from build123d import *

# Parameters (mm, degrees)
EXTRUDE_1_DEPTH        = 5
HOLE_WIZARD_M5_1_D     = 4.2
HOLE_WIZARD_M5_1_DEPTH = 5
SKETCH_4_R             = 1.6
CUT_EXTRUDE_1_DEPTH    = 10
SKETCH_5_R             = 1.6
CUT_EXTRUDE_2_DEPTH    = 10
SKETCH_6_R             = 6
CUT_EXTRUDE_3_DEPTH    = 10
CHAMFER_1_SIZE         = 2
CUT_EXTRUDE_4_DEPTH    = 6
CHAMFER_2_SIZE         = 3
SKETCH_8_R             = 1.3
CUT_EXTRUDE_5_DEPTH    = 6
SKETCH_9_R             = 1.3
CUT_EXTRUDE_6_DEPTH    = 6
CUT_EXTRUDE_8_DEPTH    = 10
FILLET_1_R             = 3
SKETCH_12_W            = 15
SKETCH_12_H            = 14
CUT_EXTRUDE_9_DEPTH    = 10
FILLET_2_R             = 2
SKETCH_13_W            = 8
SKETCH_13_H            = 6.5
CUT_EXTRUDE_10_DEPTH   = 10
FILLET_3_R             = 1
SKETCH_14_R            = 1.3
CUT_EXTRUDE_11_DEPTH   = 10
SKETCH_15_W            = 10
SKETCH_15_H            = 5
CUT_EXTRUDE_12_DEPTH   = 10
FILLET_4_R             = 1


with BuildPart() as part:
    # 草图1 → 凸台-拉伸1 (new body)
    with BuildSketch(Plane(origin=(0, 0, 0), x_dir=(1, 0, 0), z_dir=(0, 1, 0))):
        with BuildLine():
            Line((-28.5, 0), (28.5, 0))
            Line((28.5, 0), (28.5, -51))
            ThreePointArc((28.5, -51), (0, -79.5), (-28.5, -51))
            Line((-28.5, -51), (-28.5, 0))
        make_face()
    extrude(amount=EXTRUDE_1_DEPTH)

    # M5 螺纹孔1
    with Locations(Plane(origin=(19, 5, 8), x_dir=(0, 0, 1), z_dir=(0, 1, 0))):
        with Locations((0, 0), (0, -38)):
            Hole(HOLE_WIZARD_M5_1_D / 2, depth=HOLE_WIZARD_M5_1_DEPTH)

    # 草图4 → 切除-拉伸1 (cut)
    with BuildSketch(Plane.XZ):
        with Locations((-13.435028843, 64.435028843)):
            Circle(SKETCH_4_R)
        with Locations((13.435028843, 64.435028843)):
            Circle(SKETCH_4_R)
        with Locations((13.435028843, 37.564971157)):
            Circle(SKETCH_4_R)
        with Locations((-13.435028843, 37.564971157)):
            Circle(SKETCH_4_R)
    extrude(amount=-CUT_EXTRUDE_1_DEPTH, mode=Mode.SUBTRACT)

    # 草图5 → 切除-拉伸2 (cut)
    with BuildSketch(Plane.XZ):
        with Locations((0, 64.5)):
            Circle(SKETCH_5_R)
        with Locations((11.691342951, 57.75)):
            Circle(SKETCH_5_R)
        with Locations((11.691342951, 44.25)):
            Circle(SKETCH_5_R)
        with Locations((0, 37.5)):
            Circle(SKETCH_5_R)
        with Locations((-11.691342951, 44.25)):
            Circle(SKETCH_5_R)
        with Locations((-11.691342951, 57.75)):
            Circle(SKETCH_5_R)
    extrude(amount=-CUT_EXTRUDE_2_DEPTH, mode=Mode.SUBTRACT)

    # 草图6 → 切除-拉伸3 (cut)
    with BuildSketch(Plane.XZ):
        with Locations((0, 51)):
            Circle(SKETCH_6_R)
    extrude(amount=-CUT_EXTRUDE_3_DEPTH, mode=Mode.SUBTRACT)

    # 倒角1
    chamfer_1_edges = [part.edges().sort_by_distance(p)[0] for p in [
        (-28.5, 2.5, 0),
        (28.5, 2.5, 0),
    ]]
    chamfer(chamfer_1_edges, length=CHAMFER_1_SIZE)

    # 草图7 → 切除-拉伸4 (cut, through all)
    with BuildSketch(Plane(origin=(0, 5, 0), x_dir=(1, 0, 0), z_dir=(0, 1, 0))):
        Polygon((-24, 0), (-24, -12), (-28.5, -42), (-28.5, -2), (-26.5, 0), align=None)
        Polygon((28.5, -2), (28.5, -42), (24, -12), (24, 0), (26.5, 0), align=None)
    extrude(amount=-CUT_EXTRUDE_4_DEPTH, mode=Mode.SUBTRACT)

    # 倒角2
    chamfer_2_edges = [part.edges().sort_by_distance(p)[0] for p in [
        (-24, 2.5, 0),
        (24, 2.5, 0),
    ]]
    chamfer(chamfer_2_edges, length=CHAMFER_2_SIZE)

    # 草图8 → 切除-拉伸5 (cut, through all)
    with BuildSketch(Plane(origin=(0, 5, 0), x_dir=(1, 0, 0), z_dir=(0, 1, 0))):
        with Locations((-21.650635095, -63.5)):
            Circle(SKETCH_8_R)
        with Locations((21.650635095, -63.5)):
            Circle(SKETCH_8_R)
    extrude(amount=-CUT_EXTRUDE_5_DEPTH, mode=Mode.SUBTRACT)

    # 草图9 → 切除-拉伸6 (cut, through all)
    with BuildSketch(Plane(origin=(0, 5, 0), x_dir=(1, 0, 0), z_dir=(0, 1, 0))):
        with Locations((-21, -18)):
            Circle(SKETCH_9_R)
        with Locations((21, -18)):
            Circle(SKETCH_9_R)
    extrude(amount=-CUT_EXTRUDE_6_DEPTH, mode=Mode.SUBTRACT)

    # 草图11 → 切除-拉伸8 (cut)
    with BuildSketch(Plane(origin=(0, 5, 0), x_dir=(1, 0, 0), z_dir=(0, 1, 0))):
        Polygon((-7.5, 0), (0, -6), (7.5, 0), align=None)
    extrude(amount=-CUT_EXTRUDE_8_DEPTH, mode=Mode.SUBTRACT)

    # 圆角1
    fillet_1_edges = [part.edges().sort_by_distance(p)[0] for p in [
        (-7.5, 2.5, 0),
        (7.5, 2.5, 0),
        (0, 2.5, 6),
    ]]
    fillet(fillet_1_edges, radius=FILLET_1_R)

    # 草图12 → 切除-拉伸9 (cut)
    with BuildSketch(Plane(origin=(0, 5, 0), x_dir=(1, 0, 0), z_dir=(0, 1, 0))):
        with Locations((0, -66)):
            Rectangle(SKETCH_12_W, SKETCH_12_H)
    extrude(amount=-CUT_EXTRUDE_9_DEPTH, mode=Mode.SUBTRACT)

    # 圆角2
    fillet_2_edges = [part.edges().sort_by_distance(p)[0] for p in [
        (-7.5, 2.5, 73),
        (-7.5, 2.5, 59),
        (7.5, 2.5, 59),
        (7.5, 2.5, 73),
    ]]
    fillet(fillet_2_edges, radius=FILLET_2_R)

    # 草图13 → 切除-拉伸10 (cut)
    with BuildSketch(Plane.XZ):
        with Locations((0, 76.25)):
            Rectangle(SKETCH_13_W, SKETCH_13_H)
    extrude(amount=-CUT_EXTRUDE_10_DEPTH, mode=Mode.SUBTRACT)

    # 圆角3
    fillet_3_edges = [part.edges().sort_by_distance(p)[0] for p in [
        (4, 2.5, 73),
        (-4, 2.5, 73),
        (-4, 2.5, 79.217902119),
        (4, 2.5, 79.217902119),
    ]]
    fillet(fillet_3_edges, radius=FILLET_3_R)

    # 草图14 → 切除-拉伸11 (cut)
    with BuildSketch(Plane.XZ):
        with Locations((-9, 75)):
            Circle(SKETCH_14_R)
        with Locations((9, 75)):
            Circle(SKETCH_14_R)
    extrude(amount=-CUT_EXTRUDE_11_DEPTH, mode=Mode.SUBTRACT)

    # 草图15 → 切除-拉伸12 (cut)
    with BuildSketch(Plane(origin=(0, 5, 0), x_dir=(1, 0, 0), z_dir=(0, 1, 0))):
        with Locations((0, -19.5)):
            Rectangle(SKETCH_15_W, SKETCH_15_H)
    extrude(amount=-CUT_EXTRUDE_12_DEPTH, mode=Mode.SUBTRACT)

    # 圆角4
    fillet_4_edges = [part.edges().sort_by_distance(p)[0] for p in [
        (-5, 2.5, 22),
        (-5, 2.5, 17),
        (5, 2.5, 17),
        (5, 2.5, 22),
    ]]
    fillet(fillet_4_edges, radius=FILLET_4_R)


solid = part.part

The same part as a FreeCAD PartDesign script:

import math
import FreeCAD as App
import Part
import Sketcher
from FreeCAD import Vector
Q = App.Units.Quantity


def edges_at(feature, points):
    """Names of the edges that pass closest to the given points."""
    edges = feature.Shape.Edges
    near = lambda p: min(range(len(edges)), key=lambda i: edges[i].distToShape(Part.Vertex(*p))[0])
    return sorted({f"Edge{near(p) + 1}" for p in points})

doc = App.newDocument("Part")
body = doc.addObject("PartDesign::Body", "Body")

# Sketch on XZ plane
sketch1 = doc.addObject("Sketcher::SketchObject", "Sketch")
body.addObject(sketch1)
sketch1.AttachmentSupport = (doc.XZ_Plane, [""])
sketch1.MapMode = "FlatFace"
sketch1.addGeometry([
    Part.LineSegment(Vector(28, 0, 0), Vector(-28, 0, 0)),
    Part.LineSegment(Vector(-28, 0, 0), Vector(-28, 51, 0)),
    Part.ArcOfCircle(Part.Circle(Vector(0, 51, 0), Vector(0, 0, 1), 28), math.radians(0), math.radians(180)),
    Part.LineSegment(Vector(28, 51, 0), Vector(28, 0, 0)),
], False)
sketch1.addConstraint([
    Sketcher.Constraint("Coincident", 0, 2, 1, 1),
    Sketcher.Constraint("Tangent", 1, 2, 2, 2),
    Sketcher.Constraint("Tangent", 2, 1, 3, 1),
    Sketcher.Constraint("Coincident", 3, 2, 0, 1),
    Sketcher.Constraint("Horizontal", 0),
    Sketcher.Constraint("Vertical", 1),
    Sketcher.Constraint("Vertical", 3),
    Sketcher.Constraint("Symmetric", 0, 2, 3, 2, -1, 1),
    Sketcher.Constraint("Radius", 2, Q("28.5 mm")),
    Sketcher.Constraint("DistanceY", 1, 1, 1, 2, Q("51 mm")),
])
pad1 = doc.addObject("PartDesign::Pad", "Pad")
body.addObject(pad1)
pad1.Profile = sketch1
pad1.Length = 5
pad1.Reversed = True

# Sketch on XZ plane
sketch2 = doc.addObject("Sketcher::SketchObject", "Sketch001")
body.addObject(sketch2)
sketch2.AttachmentSupport = (doc.XZ_Plane, [""])
sketch2.MapMode = "FlatFace"
sketch2.AttachmentOffset = App.Placement(Vector(0, 0, -5), App.Rotation())
sketch2.addGeometry([
    Part.Circle(Vector(19, 8, 0), Vector(0, 0, 1), 2.1),
    Part.Circle(Vector(-19, 8, 0), Vector(0, 0, 1), 2.1),
], False)
sketch2.addConstraint([
    Sketcher.Constraint("Equal", 0, 1),
    Sketcher.Constraint("Symmetric", 0, 3, 1, 3, -2),
    Sketcher.Constraint("Diameter", 0, Q("4.2 mm")),
    Sketcher.Constraint("DistanceX", -1, 1, 0, 3, Q("19 mm")),
    Sketcher.Constraint("DistanceY", -1, 1, 0, 3, Q("8 mm")),
])
doc.recompute()
hole = doc.addObject("PartDesign::Hole", "Hole")
body.addObject(hole)
hole.Profile = sketch2
hole.ThreadType = "None"
hole.Diameter = 4.2
hole.DepthType = "Dimension"
hole.Depth = 5
hole.DrillPoint = "Flat"
hole.Reversed = True

# Sketch on XZ plane
sketch3 = doc.addObject("Sketcher::SketchObject", "Sketch002")
body.addObject(sketch3)
sketch3.AttachmentSupport = (doc.XZ_Plane, [""])
sketch3.MapMode = "FlatFace"
sketch3.addGeometry([
    Part.Circle(Vector(-13.4, 64.4, 0), Vector(0, 0, 1), 1.6),
    Part.Circle(Vector(13.4, 64.4, 0), Vector(0, 0, 1), 1.6),
    Part.Circle(Vector(13.4, 37.6, 0), Vector(0, 0, 1), 1.6),
    Part.Circle(Vector(-13.4, 37.6, 0), Vector(0, 0, 1), 1.6),
], False)
sketch3.addConstraint([
    Sketcher.Constraint("Equal", 0, 1),
    Sketcher.Constraint("Equal", 1, 2),
    Sketcher.Constraint("Equal", 2, 3),
    Sketcher.Constraint("Symmetric", 0, 3, 1, 3, -2),
    Sketcher.Constraint("Symmetric", 2, 3, 3, 3, -2),
    Sketcher.Constraint("Vertical", 1, 3, 2, 3),
    Sketcher.Constraint("Diameter", 0, Q("3.2 mm")),
    Sketcher.Constraint("DistanceX", 0, 3, -1, 1, Q("13.435029 mm")),
    Sketcher.Constraint("DistanceY", -1, 1, 0, 3, Q("64.435029 mm")),
    Sketcher.Constraint("DistanceY", -1, 1, 2, 3, Q("37.564971 mm")),
])
pocket1 = doc.addObject("PartDesign::Pocket", "Pocket")
body.addObject(pocket1)
pocket1.Profile = sketch3
pocket1.Length = 10

# Sketch on XZ plane
sketch4 = doc.addObject("Sketcher::SketchObject", "Sketch003")
body.addObject(sketch4)
sketch4.AttachmentSupport = (doc.XZ_Plane, [""])
sketch4.MapMode = "FlatFace"
sketch4.addGeometry([
    Part.Circle(Vector(0, 64.5, 0), Vector(0, 0, 1), 1.6),  # 0
    Part.Circle(Vector(11.7, 57.8, 0), Vector(0, 0, 1), 1.6),  # 1
    Part.Circle(Vector(11.7, 44.2, 0), Vector(0, 0, 1), 1.6),  # 2
    Part.Circle(Vector(0, 37.5, 0), Vector(0, 0, 1), 1.6),  # 3
    Part.Circle(Vector(-11.7, 44.2, 0), Vector(0, 0, 1), 1.6),  # 4
    Part.Circle(Vector(-11.7, 57.8, 0), Vector(0, 0, 1), 1.6),  # 5
], False)
sketch4.addConstraint([
    Sketcher.Constraint("Equal", 0, 1),
    Sketcher.Constraint("Equal", 1, 2),
    Sketcher.Constraint("Equal", 2, 3),
    Sketcher.Constraint("Equal", 3, 4),
    Sketcher.Constraint("Equal", 4, 5),
    Sketcher.Constraint("Symmetric", 2, 3, 4, 3, -2),
    Sketcher.Constraint("Symmetric", 1, 3, 5, 3, -2),
    Sketcher.Constraint("PointOnObject", 0, 3, -2),
    Sketcher.Constraint("PointOnObject", 3, 3, -2),
    Sketcher.Constraint("Vertical", 1, 3, 2, 3),
    Sketcher.Constraint("Diameter", 0, Q("3.2 mm")),
    Sketcher.Constraint("DistanceY", 3, 3, 0, 3, Q("27 mm")),
    Sketcher.Constraint("DistanceY", -1, 1, 0, 3, Q("64.5 mm")),
    Sketcher.Constraint("DistanceY", 2, 3, 1, 3, Q("13.5 mm")),
    Sketcher.Constraint("DistanceY", -1, 1, 1, 3, Q("57.75 mm")),
    Sketcher.Constraint("DistanceX", -1, 1, 1, 3, Q("11.691343 mm")),
])
pocket2 = doc.addObject("PartDesign::Pocket", "Pocket001")
body.addObject(pocket2)
pocket2.Profile = sketch4
pocket2.Length = 10

# Sketch on XZ plane
sketch5 = doc.addObject("Sketcher::SketchObject", "Sketch004")
body.addObject(sketch5)
sketch5.AttachmentSupport = (doc.XZ_Plane, [""])
sketch5.MapMode = "FlatFace"
sketch5.addGeometry(Part.Circle(Vector(0, 51, 0), Vector(0, 0, 1), 6), False)
sketch5.addConstraint([
    Sketcher.Constraint("PointOnObject", 0, 3, -2),
    Sketcher.Constraint("Diameter", 0, Q("12 mm")),
    Sketcher.Constraint("DistanceY", -1, 1, 0, 3, Q("51 mm")),
])
pocket3 = doc.addObject("PartDesign::Pocket", "Pocket002")
body.addObject(pocket3)
pocket3.Profile = sketch5
pocket3.Length = 10
doc.recompute()

chamfer = doc.addObject("PartDesign::Chamfer", "Chamfer")
body.addObject(chamfer)
chamfer.Base = (pocket3, edges_at(pocket3, [(-28.5, 2.5, 0), (28.5, 2.5, 0)]))
chamfer.Size = 2

# Sketch on XZ plane
sketch6 = doc.addObject("Sketcher::SketchObject", "Sketch005")
body.addObject(sketch6)
sketch6.AttachmentSupport = (doc.XZ_Plane, [""])
sketch6.MapMode = "FlatFace"
sketch6.AttachmentOffset = App.Placement(Vector(0, 0, -5), App.Rotation())
sketch6.addGeometry([
    Part.LineSegment(Vector(-24, 12, 0), Vector(-24, 0, 0)),  # 0
    Part.LineSegment(Vector(-24, 0, 0), Vector(-26.5, 0, 0)),  # 1
    Part.LineSegment(Vector(-26.5, 0, 0), Vector(-28.5, 2, 0)),  # 2
    Part.LineSegment(Vector(-28.5, 2, 0), Vector(-28.5, 42, 0)),  # 3
    Part.LineSegment(Vector(-28.5, 42, 0), Vector(-24, 12, 0)),  # 4
    Part.LineSegment(Vector(28.5, 42, 0), Vector(28.5, 2, 0)),  # 5
    Part.LineSegment(Vector(28.5, 2, 0), Vector(26.5, 0, 0)),  # 6
    Part.LineSegment(Vector(26.5, 0, 0), Vector(24, 0, 0)),  # 7
    Part.LineSegment(Vector(24, 0, 0), Vector(24, 12, 0)),  # 8
    Part.LineSegment(Vector(24, 12, 0), Vector(28.5, 42, 0)),  # 9
], False)
sketch6.addConstraint([
    Sketcher.Constraint("Coincident", 0, 2, 1, 1),
    Sketcher.Constraint("Coincident", 1, 2, 2, 1),
    Sketcher.Constraint("Coincident", 2, 2, 3, 1),
    Sketcher.Constraint("Coincident", 3, 2, 4, 1),
    Sketcher.Constraint("Coincident", 4, 2, 0, 1),
    Sketcher.Constraint("Coincident", 5, 2, 6, 1),
    Sketcher.Constraint("Coincident", 6, 2, 7, 1),
    Sketcher.Constraint("Coincident", 7, 2, 8, 1),
    Sketcher.Constraint("Coincident", 8, 2, 9, 1),
    Sketcher.Constraint("Coincident", 9, 2, 5, 1),
    Sketcher.Constraint("Vertical", 0),
    Sketcher.Constraint("Horizontal", 1),
    Sketcher.Constraint("Vertical", 3),
    Sketcher.Constraint("Vertical", 5),
    Sketcher.Constraint("Horizontal", 7),
    Sketcher.Constraint("Vertical", 8),
    Sketcher.Constraint("Symmetric", 1, 2, 6, 2, -1, 1),
    Sketcher.Constraint("Symmetric", 2, 2, 5, 2, -2),
    Sketcher.Constraint("Symmetric", 0, 2, 7, 2, -2),
    Sketcher.Constraint("Perpendicular", 2, 6),
    Sketcher.Constraint("Horizontal", 4, 2, 8, 2),
    Sketcher.Constraint("Horizontal", 3, 2, 9, 2),
    Sketcher.Constraint("DistanceY", 0, 2, 0, 1, Q("12 mm")),
    Sketcher.Constraint("DistanceY", 3, 1, 3, 2, Q("40 mm")),
    Sketcher.Constraint("DistanceX", 1, 2, 1, 1, Q("2.5 mm")),
    Sketcher.Constraint("DistanceX", 0, 2, -1, 1, Q("24 mm")),
    Sketcher.Constraint("DistanceY", -1, 1, 2, 2, Q("2 mm")),
])
pocket4 = doc.addObject("PartDesign::Pocket", "Pocket003")
body.addObject(pocket4)
pocket4.Profile = sketch6
pocket4.Type = "ThroughAll"
pocket4.Reversed = True
doc.recompute()

chamfer2 = doc.addObject("PartDesign::Chamfer", "Chamfer001")
body.addObject(chamfer2)
chamfer2.Base = (pocket4, edges_at(pocket4, [(-24, 2.5, 0), (24, 2.5, 0)]))
chamfer2.Size = 3

# Sketch on XZ plane
sketch7 = doc.addObject("Sketcher::SketchObject", "Sketch006")
body.addObject(sketch7)
sketch7.AttachmentSupport = (doc.XZ_Plane, [""])
sketch7.MapMode = "FlatFace"
sketch7.AttachmentOffset = App.Placement(Vector(0, 0, -5), App.Rotation())
sketch7.addGeometry([
    Part.Circle(Vector(-21.7, 63.5, 0), Vector(0, 0, 1), 1.3),
    Part.Circle(Vector(21.7, 63.5, 0), Vector(0, 0, 1), 1.3),
], False)
sketch7.addConstraint([
    Sketcher.Constraint("Equal", 0, 1),
    Sketcher.Constraint("Symmetric", 0, 3, 1, 3, -2),
    Sketcher.Constraint("Diameter", 0, Q("2.6 mm")),
    Sketcher.Constraint("DistanceY", -1, 1, 0, 3, Q("63.5 mm")),
    Sketcher.Constraint("DistanceX", 0, 3, 1, 3, Q("43.30127 mm")),
])
pocket5 = doc.addObject("PartDesign::Pocket", "Pocket004")
body.addObject(pocket5)
pocket5.Profile = sketch7
pocket5.Type = "ThroughAll"
pocket5.Reversed = True

# Sketch on XZ plane
sketch8 = doc.addObject("Sketcher::SketchObject", "Sketch007")
body.addObject(sketch8)
sketch8.AttachmentSupport = (doc.XZ_Plane, [""])
sketch8.MapMode = "FlatFace"
sketch8.AttachmentOffset = App.Placement(Vector(0, 0, -5), App.Rotation())
sketch8.addGeometry([
    Part.Circle(Vector(-21, 18, 0), Vector(0, 0, 1), 1.3),
    Part.Circle(Vector(21, 18, 0), Vector(0, 0, 1), 1.3),
], False)
sketch8.addConstraint([
    Sketcher.Constraint("Equal", 0, 1),
    Sketcher.Constraint("Symmetric", 0, 3, 1, 3, -2),
    Sketcher.Constraint("Diameter", 0, Q("2.6 mm")),
    Sketcher.Constraint("DistanceX", 0, 3, -1, 1, Q("21 mm")),
    Sketcher.Constraint("DistanceY", -1, 1, 0, 3, Q("18 mm")),
])
pocket6 = doc.addObject("PartDesign::Pocket", "Pocket005")
body.addObject(pocket6)
pocket6.Profile = sketch8
pocket6.Type = "ThroughAll"
pocket6.Reversed = True

# Sketch on XZ plane
sketch9 = doc.addObject("Sketcher::SketchObject", "Sketch008")
body.addObject(sketch9)
sketch9.AttachmentSupport = (doc.XZ_Plane, [""])
sketch9.MapMode = "FlatFace"
sketch9.AttachmentOffset = App.Placement(Vector(0, 0, -5), App.Rotation())
sketch9.addGeometry([
    Part.LineSegment(Vector(-8, 0, 0), Vector(0, 6, 0)),
    Part.LineSegment(Vector(0, 6, 0), Vector(8, 0, 0)),
    Part.LineSegment(Vector(8, 0, 0), Vector(-8, 0, 0)),
], False)
sketch9.addConstraint([
    Sketcher.Constraint("Coincident", 0, 2, 1, 1),
    Sketcher.Constraint("Coincident", 1, 2, 2, 1),
    Sketcher.Constraint("Coincident", 2, 2, 0, 1),
    Sketcher.Constraint("Horizontal", 2),
    Sketcher.Constraint("Symmetric", 1, 2, 2, 2, -1, 1),
    Sketcher.Constraint("PointOnObject", 0, 2, -2),
    Sketcher.Constraint("DistanceX", 2, 2, 2, 1, Q("15 mm")),
    Sketcher.Constraint("DistanceY", -1, 1, 0, 2, Q("6 mm")),
])
pocket7 = doc.addObject("PartDesign::Pocket", "Pocket006")
body.addObject(pocket7)
pocket7.Profile = sketch9
pocket7.Length = 10
pocket7.Reversed = True
doc.recompute()

fillet = doc.addObject("PartDesign::Fillet", "Fillet")
body.addObject(fillet)
fillet.Base = (pocket7, edges_at(pocket7, [(-7.5, 2.5, 0), (7.5, 2.5, 0), (0, 2.5, 6)]))
fillet.Radius = 3

# Sketch on XZ plane
sketch10 = doc.addObject("Sketcher::SketchObject", "Sketch009")
body.addObject(sketch10)
sketch10.AttachmentSupport = (doc.XZ_Plane, [""])
sketch10.MapMode = "FlatFace"
sketch10.AttachmentOffset = App.Placement(Vector(0, 0, -5), App.Rotation())
sketch10.addGeometry([
    Part.LineSegment(Vector(-8, 59, 0), Vector(-8, 73, 0)),
    Part.LineSegment(Vector(-8, 73, 0), Vector(8, 73, 0)),
    Part.LineSegment(Vector(8, 73, 0), Vector(8, 59, 0)),
    Part.LineSegment(Vector(8, 59, 0), Vector(-8, 59, 0)),
], False)
sketch10.addConstraint([
    Sketcher.Constraint("Coincident", 0, 2, 1, 1),
    Sketcher.Constraint("Coincident", 1, 2, 2, 1),
    Sketcher.Constraint("Coincident", 2, 2, 3, 1),
    Sketcher.Constraint("Coincident", 3, 2, 0, 1),
    Sketcher.Constraint("Vertical", 0),
    Sketcher.Constraint("Horizontal", 1),
    Sketcher.Constraint("Vertical", 2),
    Sketcher.Constraint("Horizontal", 3),
    Sketcher.Constraint("DistanceX", 1, 1, 1, 2, Q("15 mm")),
    Sketcher.Constraint("DistanceY", 0, 1, 0, 2, Q("14 mm")),
    Sketcher.Constraint("DistanceY", -1, 1, 0, 2, Q("73 mm")),
    Sketcher.Constraint("DistanceX", 0, 2, -1, 1, Q("7.5 mm")),
])
pocket8 = doc.addObject("PartDesign::Pocket", "Pocket007")
body.addObject(pocket8)
pocket8.Profile = sketch10
pocket8.Length = 10
pocket8.Reversed = True
doc.recompute()

fillet2 = doc.addObject("PartDesign::Fillet", "Fillet001")
body.addObject(fillet2)
fillet2.Base = (pocket8, edges_at(pocket8, [
    (-7.5, 2.5, 73),
    (-7.5, 2.5, 59),
    (7.5, 2.5, 59),
    (7.5, 2.5, 73),
]))
fillet2.Radius = 2

# Sketch on XZ plane
sketch11 = doc.addObject("Sketcher::SketchObject", "Sketch010")
body.addObject(sketch11)
sketch11.AttachmentSupport = (doc.XZ_Plane, [""])
sketch11.MapMode = "FlatFace"
sketch11.addGeometry([
    Part.LineSegment(Vector(-4, 80, 0), Vector(-4, 73, 0)),
    Part.LineSegment(Vector(-4, 73, 0), Vector(4, 73, 0)),
    Part.LineSegment(Vector(4, 73, 0), Vector(4, 80, 0)),
    Part.LineSegment(Vector(4, 80, 0), Vector(-4, 80, 0)),
], False)
sketch11.addConstraint([
    Sketcher.Constraint("Coincident", 0, 2, 1, 1),
    Sketcher.Constraint("Coincident", 1, 2, 2, 1),
    Sketcher.Constraint("Coincident", 2, 2, 3, 1),
    Sketcher.Constraint("Coincident", 3, 2, 0, 1),
    Sketcher.Constraint("Vertical", 0),
    Sketcher.Constraint("Horizontal", 1),
    Sketcher.Constraint("Vertical", 2),
    Sketcher.Constraint("Horizontal", 3),
    Sketcher.Constraint("DistanceX", 1, 1, 1, 2, Q("8 mm")),
    Sketcher.Constraint("DistanceY", 0, 2, 0, 1, Q("6.5 mm")),
    Sketcher.Constraint("DistanceX", 0, 2, -1, 1, Q("4 mm")),
    Sketcher.Constraint("DistanceY", -1, 1, 0, 2, Q("73 mm")),
])
pocket9 = doc.addObject("PartDesign::Pocket", "Pocket008")
body.addObject(pocket9)
pocket9.Profile = sketch11
pocket9.Length = 10
doc.recompute()

fillet3 = doc.addObject("PartDesign::Fillet", "Fillet002")
body.addObject(fillet3)
fillet3.Base = (pocket9, edges_at(pocket9, [
    (4, 2.5, 73),
    (-4, 2.5, 73),
    (-4, 2.5, 79.218),
    (4, 2.5, 79.218),
]))
fillet3.Radius = 1

# Sketch on XZ plane
sketch12 = doc.addObject("Sketcher::SketchObject", "Sketch011")
body.addObject(sketch12)
sketch12.AttachmentSupport = (doc.XZ_Plane, [""])
sketch12.MapMode = "FlatFace"
sketch12.addGeometry([
    Part.Circle(Vector(-9, 75, 0), Vector(0, 0, 1), 1.3),
    Part.Circle(Vector(9, 75, 0), Vector(0, 0, 1), 1.3),
], False)
sketch12.addConstraint([
    Sketcher.Constraint("Equal", 0, 1),
    Sketcher.Constraint("Symmetric", 0, 3, 1, 3, -2),
    Sketcher.Constraint("Diameter", 0, Q("2.6 mm")),
    Sketcher.Constraint("DistanceX", 0, 3, -1, 1, Q("9 mm")),
    Sketcher.Constraint("DistanceY", -1, 1, 0, 3, Q("75 mm")),
])
pocket10 = doc.addObject("PartDesign::Pocket", "Pocket009")
body.addObject(pocket10)
pocket10.Profile = sketch12
pocket10.Length = 10

# Sketch on XZ plane
sketch13 = doc.addObject("Sketcher::SketchObject", "Sketch012")
body.addObject(sketch13)
sketch13.AttachmentSupport = (doc.XZ_Plane, [""])
sketch13.MapMode = "FlatFace"
sketch13.AttachmentOffset = App.Placement(Vector(0, 0, -5), App.Rotation())
sketch13.addGeometry([
    Part.LineSegment(Vector(-5, 17, 0), Vector(-5, 22, 0)),
    Part.LineSegment(Vector(-5, 22, 0), Vector(5, 22, 0)),
    Part.LineSegment(Vector(5, 22, 0), Vector(5, 17, 0)),
    Part.LineSegment(Vector(5, 17, 0), Vector(-5, 17, 0)),
], False)
sketch13.addConstraint([
    Sketcher.Constraint("Coincident", 0, 2, 1, 1),
    Sketcher.Constraint("Coincident", 1, 2, 2, 1),
    Sketcher.Constraint("Coincident", 2, 2, 3, 1),
    Sketcher.Constraint("Coincident", 3, 2, 0, 1),
    Sketcher.Constraint("Vertical", 0),
    Sketcher.Constraint("Horizontal", 1),
    Sketcher.Constraint("Vertical", 2),
    Sketcher.Constraint("Horizontal", 3),
    Sketcher.Constraint("DistanceX", 1, 1, 1, 2, Q("10 mm")),
    Sketcher.Constraint("DistanceY", 0, 1, 0, 2, Q("5 mm")),
    Sketcher.Constraint("DistanceX", 0, 2, -1, 1, Q("5 mm")),
    Sketcher.Constraint("DistanceY", -1, 1, 0, 2, Q("22 mm")),
])
pocket11 = doc.addObject("PartDesign::Pocket", "Pocket010")
body.addObject(pocket11)
pocket11.Profile = sketch13
pocket11.Length = 10
pocket11.Reversed = True
doc.recompute()

fillet4 = doc.addObject("PartDesign::Fillet", "Fillet003")
body.addObject(fillet4)
fillet4.Base = (pocket11, edges_at(pocket11, [
    (-5, 2.5, 22),
    (-5, 2.5, 17),
    (5, 2.5, 17),
    (5, 2.5, 22),
]))
fillet4.Radius = 1

doc.recompute()
